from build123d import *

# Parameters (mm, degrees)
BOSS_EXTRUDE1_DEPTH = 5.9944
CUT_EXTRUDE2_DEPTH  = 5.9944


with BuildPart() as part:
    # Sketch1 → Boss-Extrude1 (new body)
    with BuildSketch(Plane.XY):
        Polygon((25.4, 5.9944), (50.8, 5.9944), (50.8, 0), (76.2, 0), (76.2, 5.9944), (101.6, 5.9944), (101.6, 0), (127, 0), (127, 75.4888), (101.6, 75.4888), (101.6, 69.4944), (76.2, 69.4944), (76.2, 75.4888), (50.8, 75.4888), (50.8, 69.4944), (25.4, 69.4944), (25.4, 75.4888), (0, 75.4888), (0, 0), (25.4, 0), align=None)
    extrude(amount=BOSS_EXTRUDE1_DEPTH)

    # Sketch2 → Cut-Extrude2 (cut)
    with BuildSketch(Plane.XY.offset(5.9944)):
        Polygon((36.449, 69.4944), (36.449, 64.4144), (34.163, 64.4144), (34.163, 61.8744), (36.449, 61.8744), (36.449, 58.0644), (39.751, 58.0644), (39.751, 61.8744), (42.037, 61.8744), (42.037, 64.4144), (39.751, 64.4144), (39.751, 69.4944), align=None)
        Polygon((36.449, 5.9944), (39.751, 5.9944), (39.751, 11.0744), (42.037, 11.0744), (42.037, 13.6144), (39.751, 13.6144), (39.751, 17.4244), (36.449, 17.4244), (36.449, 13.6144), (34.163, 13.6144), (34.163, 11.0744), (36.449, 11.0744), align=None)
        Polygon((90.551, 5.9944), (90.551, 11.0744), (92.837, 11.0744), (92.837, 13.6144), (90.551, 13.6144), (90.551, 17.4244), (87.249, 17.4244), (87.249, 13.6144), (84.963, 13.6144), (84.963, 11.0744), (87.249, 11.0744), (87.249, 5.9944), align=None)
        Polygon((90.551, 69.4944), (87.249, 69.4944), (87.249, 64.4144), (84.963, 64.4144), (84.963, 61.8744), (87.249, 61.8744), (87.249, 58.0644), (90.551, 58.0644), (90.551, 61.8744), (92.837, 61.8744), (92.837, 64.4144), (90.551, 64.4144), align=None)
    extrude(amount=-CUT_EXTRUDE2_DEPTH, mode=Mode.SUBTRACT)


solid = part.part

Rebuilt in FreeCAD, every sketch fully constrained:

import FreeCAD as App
import Part
import Sketcher
from FreeCAD import Vector
Q = App.Units.Quantity

doc = App.newDocument("Part")
body = doc.addObject("PartDesign::Body", "Body")

# Sketch on XY plane
sketch1 = doc.addObject("Sketcher::SketchObject", "Sketch")
body.addObject(sketch1)
sketch1.AttachmentSupport = (doc.XY_Plane, [""])
sketch1.MapMode = "FlatFace"
sketch1.addGeometry(Part.LineSegment(Vector(25, 6, 0), Vector(51, 6, 0)), False)
sketch1.addGeometry(Part.LineSegment(Vector(51, 6, 0), Vector(51, 0, 0)), False)
sketch1.addGeometry(Part.LineSegment(Vector(51, 0, 0), Vector(76, 0, 0)), False)
sketch1.addGeometry(Part.LineSegment(Vector(76, 0, 0), Vector(76, 6, 0)), False)
sketch1.addGeometry(Part.LineSegment(Vector(76, 6, 0), Vector(102, 6, 0)), False)
sketch1.addGeometry(Part.LineSegment(Vector(102, 6, 0), Vector(102, 0, 0)), False)
sketch1.addGeometry(Part.LineSegment(Vector(102, 0, 0), Vector(127, 0, 0)), False)
sketch1.addGeometry(Part.LineSegment(Vector(127, 0, 0), Vector(127, 75, 0)), False)
sketch1.addGeometry(Part.LineSegment(Vector(127, 75, 0), Vector(102, 75, 0)), False)
sketch1.addGeometry(Part.LineSegment(Vector(102, 75, 0), Vector(102, 69, 0)), False)
sketch1.addGeometry(Part.LineSegment(Vector(102, 69, 0), Vector(76, 69, 0)), False)
sketch1.addGeometry(Part.LineSegment(Vector(76, 69, 0), Vector(76, 75, 0)), False)
sketch1.addGeometry(Part.LineSegment(Vector(76, 75, 0), Vector(51, 75, 0)), False)
sketch1.addGeometry(Part.LineSegment(Vector(51, 75, 0), Vector(51, 69, 0)), False)
sketch1.addGeometry(Part.LineSegment(Vector(51, 69, 0), Vector(25, 69, 0)), False)
sketch1.addGeometry(Part.LineSegment(Vector(25, 69, 0), Vector(25, 75, 0)), False)
sketch1.addGeometry(Part.LineSegment(Vector(25, 75, 0), Vector(0, 75, 0)), False)
sketch1.addGeometry(Part.LineSegment(Vector(0, 75, 0), Vector(0, 0, 0)), False)
sketch1.addGeometry(Part.LineSegment(Vector(0, 0, 0), Vector(25, 0, 0)), False)
sketch1.addGeometry(Part.LineSegment(Vector(25, 0, 0), Vector(25, 6, 0)), False)
sketch1.addConstraint(Sketcher.Constraint("Coincident", 0, 2, 1, 1))
sketch1.addConstraint(Sketcher.Constraint("Coincident", 1, 2, 2, 1))
sketch1.addConstraint(Sketcher.Constraint("Coincident", 2, 2, 3, 1))
sketch1.addConstraint(Sketcher.Constraint("Coincident", 3, 2, 4, 1))
sketch1.addConstraint(Sketcher.Constraint("Coincident", 4, 2, 5, 1))
sketch1.addConstraint(Sketcher.Constraint("Coincident", 5, 2, 6, 1))
sketch1.addConstraint(Sketcher.Constraint("Coincident", 6, 2, 7, 1))
sketch1.addConstraint(Sketcher.Constraint("Coincident", 7, 2, 8, 1))
sketch1.addConstraint(Sketcher.Constraint("Coincident", 8, 2, 9, 1))
sketch1.addConstraint(Sketcher.Constraint("Coincident", 9, 2, 10, 1))
sketch1.addConstraint(Sketcher.Constraint("Coincident", 10, 2, 11, 1))
sketch1.addConstraint(Sketcher.Constraint("Coincident", 11, 2, 12, 1))
sketch1.addConstraint(Sketcher.Constraint("Coincident", 12, 2, 13, 1))
sketch1.addConstraint(Sketcher.Constraint("Coincident", 13, 2, 14, 1))
sketch1.addConstraint(Sketcher.Constraint("Coincident", 14, 2, 15, 1))
sketch1.addConstraint(Sketcher.Constraint("Coincident", 15, 2, 16, 1))
sketch1.addConstraint(Sketcher.Constraint("Coincident", 16, 2, 17, 1))
sketch1.addConstraint(Sketcher.Constraint("Coincident", 17, 2, 18, 1))
sketch1.addConstraint(Sketcher.Constraint("Coincident", 18, 2, 19, 1))
sketch1.addConstraint(Sketcher.Constraint("Coincident", 19, 2, 0, 1))
sketch1.addConstraint(Sketcher.Constraint("Horizontal", 0))
sketch1.addConstraint(Sketcher.Constraint("Vertical", 1))
sketch1.addConstraint(Sketcher.Constraint("Horizontal", 2))
sketch1.addConstraint(Sketcher.Constraint("Vertical", 3))
sketch1.addConstraint(Sketcher.Constraint("Horizontal", 4))
sketch1.addConstraint(Sketcher.Constraint("Vertical", 5))
sketch1.addConstraint(Sketcher.Constraint("Horizontal", 6))
sketch1.addConstraint(Sketcher.Constraint("Vertical", 7))
sketch1.addConstraint(Sketcher.Constraint("Horizontal", 8))
sketch1.addConstraint(Sketcher.Constraint("Vertical", 9))
sketch1.addConstraint(Sketcher.Constraint("Horizontal", 10))
sketch1.addConstraint(Sketcher.Constraint("Vertical", 11))
sketch1.addConstraint(Sketcher.Constraint("Horizontal", 12))
sketch1.addConstraint(Sketcher.Constraint("Vertical", 13))
sketch1.addConstraint(Sketcher.Constraint("Horizontal", 14))
sketch1.addConstraint(Sketcher.Constraint("Vertical", 15))
sketch1.addConstraint(Sketcher.Constraint("Horizontal", 16))
sketch1.addConstraint(Sketcher.Constraint("Vertical", 17))
sketch1.addConstraint(Sketcher.Constraint("Horizontal", 18))
sketch1.addConstraint(Sketcher.Constraint("Vertical", 19))
sketch1.addConstraint(Sketcher.Constraint("Coincident", 17, 2, -1, 1))
sketch1.addConstraint(Sketcher.Constraint("PointOnObject", 1, 2, -1))
sketch1.addConstraint(Sketcher.Constraint("PointOnObject", 5, 2, -1))
sketch1.addConstraint(Sketcher.Constraint("Horizontal", 0, 2, 3, 2))
sketch1.addConstraint(Sketcher.Constraint("Horizontal", 8, 2, 11, 2))
sketch1.addConstraint(Sketcher.Constraint("Horizontal", 10, 2, 13, 2))
sketch1.addConstraint(Sketcher.Constraint("Horizontal", 12, 2, 15, 2))
sketch1.addConstraint(Sketcher.Constraint("Vertical", 5, 2, 8, 2))
sketch1.addConstraint(Sketcher.Constraint("Vertical", 3, 2, 10, 2))
sketch1.addConstraint(Sketcher.Constraint("Vertical", 1, 2, 12, 2))
sketch1.addConstraint(Sketcher.Constraint("Vertical", 15, 2, 18, 2))
sketch1.addConstraint(Sketcher.Constraint("Equal", 0, 2))
sketch1.addConstraint(Sketcher.Constraint("Equal", 2, 4))
sketch1.addConstraint(Sketcher.Constraint("Equal", 4, 6))
sketch1.addConstraint(Sketcher.Constraint("Equal", 14, 16))
sketch1.addConstraint(Sketcher.Constraint("Equal", 5, 9))
sketch1.addConstraint(Sketcher.Constraint("DistanceX", 0, 1, 0, 2, Q("1 in")))
sketch1.addConstraint(Sketcher.Constraint("DistanceY", 4, 2, 9, 2, Q("2.5 in")))
sketch1.addConstraint(Sketcher.Constraint("DistanceY", 1, 2, 1, 1, Q("0.236 in")))
pad1 = doc.addObject("PartDesign::Pad", "Pad")
body.addObject(pad1)
pad1.Profile = sketch1
pad1.Length = Q("0.236 in")

# Sketch on XY plane
sketch2 = doc.addObject("Sketcher::SketchObject", "Sketch001")
body.addObject(sketch2)
sketch2.AttachmentSupport = (doc.XY_Plane, [""])
sketch2.MapMode = "FlatFace"
sketch2.AttachmentOffset = App.Placement(Vector(0, 0, 0.236 * 25.4), App.Rotation())
sketch2.addGeometry(Part.LineSegment(Vector(36.4, 69.5, 0), Vector(36.4, 64.4, 0)), False)
sketch2.addGeometry(Part.LineSegment(Vector(36.4, 64.4, 0), Vector(34.2, 64.4, 0)), False)
sketch2.addGeometry(Part.LineSegment(Vector(34.2, 64.4, 0), Vector(34.2, 61.9, 0)), False)
sketch2.addGeometry(Part.LineSegment(Vector(34.2, 61.9, 0), Vector(36.4, 61.9, 0)), False)
sketch2.addGeometry(Part.LineSegment(Vector(36.4, 61.9, 0), Vector(36.4, 58.1, 0)), False)
sketch2.addGeometry(Part.LineSegment(Vector(36.4, 58.1, 0), Vector(39.8, 58.1, 0)), False)
sketch2.addGeometry(Part.LineSegment(Vector(39.8, 58.1, 0), Vector(39.8, 61.9, 0)), False)
sketch2.addGeometry(Part.LineSegment(Vector(39.8, 61.9, 0), Vector(42, 61.9, 0)), False)
sketch2.addGeometry(Part.LineSegment(Vector(42, 61.9, 0), Vector(42, 64.4, 0)), False)
sketch2.addGeometry(Part.LineSegment(Vector(42, 64.4, 0), Vector(39.8, 64.4, 0)), False)
sketch2.addGeometry(Part.LineSegment(Vector(39.8, 64.4, 0), Vector(39.8, 69.5, 0)), False)
sketch2.addGeometry(Part.LineSegment(Vector(39.8, 69.5, 0), Vector(36.4, 69.5, 0)), False)
sketch2.addGeometry(Part.LineSegment(Vector(36.4, 6, 0), Vector(39.8, 6, 0)), False)
sketch2.addGeometry(Part.LineSegment(Vector(39.8, 6, 0), Vector(39.8, 11.1, 0)), False)
sketch2.addGeometry(Part.LineSegment(Vector(39.8, 11.1, 0), Vector(42, 11.1, 0)), False)
sketch2.addGeometry(Part.LineSegment(Vector(42, 11.1, 0), Vector(42, 13.6, 0)), False)
sketch2.addGeometry(Part.LineSegment(Vector(42, 13.6, 0), Vector(39.8, 13.6, 0)), False)
sketch2.addGeometry(Part.LineSegment(Vector(39.8, 13.6, 0), Vector(39.8, 17.4, 0)), False)
sketch2.addGeometry(Part.LineSegment(Vector(39.8, 17.4, 0), Vector(36.4, 17.4, 0)), False)
sketch2.addGeometry(Part.LineSegment(Vector(36.4, 17.4, 0), Vector(36.4, 13.6, 0)), False)
sketch2.addGeometry(Part.LineSegment(Vector(36.4, 13.6, 0), Vector(34.2, 13.6, 0)), False)
sketch2.addGeometry(Part.LineSegment(Vector(34.2, 13.6, 0), Vector(34.2, 11.1, 0)), False)
sketch2.addGeometry(Part.LineSegment(Vector(34.2, 11.1, 0), Vector(36.4, 11.1, 0)), False)
sketch2.addGeometry(Part.LineSegment(Vector(36.4, 11.1, 0), Vector(36.4, 6, 0)), False)
sketch2.addGeometry(Part.LineSegment(Vector(90.6, 6, 0), Vector(90.6, 11.1, 0)), False)
sketch2.addGeometry(Part.LineSegment(Vector(90.6, 11.1, 0), Vector(92.8, 11.1, 0)), False)
sketch2.addGeometry(Part.LineSegment(Vector(92.8, 11.1, 0), Vector(92.8, 13.6, 0)), False)
sketch2.addGeometry(Part.LineSegment(Vector(92.8, 13.6, 0), Vector(90.6, 13.6, 0)), False)
sketch2.addGeometry(Part.LineSegment(Vector(90.6, 13.6, 0), Vector(90.6, 17.4, 0)), False)
sketch2.addGeometry(Part.LineSegment(Vector(90.6, 17.4, 0), Vector(87.2, 17.4, 0)), False)
sketch2.addGeometry(Part.LineSegment(Vector(87.2, 17.4, 0), Vector(87.2, 13.6, 0)), False)
sketch2.addGeometry(Part.LineSegment(Vector(87.2, 13.6, 0), Vector(85, 13.6, 0)), False)
sketch2.addGeometry(Part.LineSegment(Vector(85, 13.6, 0), Vector(85, 11.1, 0)), False)
sketch2.addGeometry(Part.LineSegment(Vector(85, 11.1, 0), Vector(87.2, 11.1, 0)), False)
sketch2.addGeometry(Part.LineSegment(Vector(87.2, 11.1, 0), Vector(87.2, 6, 0)), False)
sketch2.addGeometry(Part.LineSegment(Vector(87.2, 6, 0), Vector(90.6, 6, 0)), False)
sketch2.addGeometry(Part.LineSegment(Vector(90.6, 69.5, 0), Vector(87.2, 69.5, 0)), False)
sketch2.addGeometry(Part.LineSegment(Vector(87.2, 69.5, 0), Vector(87.2, 64.4, 0)), False)
sketch2.addGeometry(Part.LineSegment(Vector(87.2, 64.4, 0), Vector(85, 64.4, 0)), False)
sketch2.addGeometry(Part.LineSegment(Vector(85, 64.4, 0), Vector(85, 61.9, 0)), False)
sketch2.addGeometry(Part.LineSegment(Vector(85, 61.9, 0), Vector(87.2, 61.9, 0)), False)
sketch2.addGeometry(Part.LineSegment(Vector(87.2, 61.9, 0), Vector(87.2, 58.1, 0)), False)
sketch2.addGeometry(Part.LineSegment(Vector(87.2, 58.1, 0), Vector(90.6, 58.1, 0)), False)
sketch2.addGeometry(Part.LineSegment(Vector(90.6, 58.1, 0), Vector(90.6, 61.9, 0)), False)
sketch2.addGeometry(Part.LineSegment(Vector(90.6, 61.9, 0), Vector(92.8, 61.9, 0)), False)
sketch2.addGeometry(Part.LineSegment(Vector(92.8, 61.9, 0), Vector(92.8, 64.4, 0)), False)
sketch2.addGeometry(Part.LineSegment(Vector(92.8, 64.4, 0), Vector(90.6, 64.4, 0)), False)
sketch2.addGeometry(Part.LineSegment(Vector(90.6, 64.4, 0), Vector(90.6, 69.5, 0)), False)
sketch2.addConstraint(Sketcher.Constraint("Coincident", 0, 2, 1, 1))
sketch2.addConstraint(Sketcher.Constraint("Coincident", 1, 2, 2, 1))
sketch2.addConstraint(Sketcher.Constraint("Coincident", 2, 2, 3, 1))
sketch2.addConstraint(Sketcher.Constraint("Coincident", 3, 2, 4, 1))
sketch2.addConstraint(Sketcher.Constraint("Coincident", 4, 2, 5, 1))
sketch2.addConstraint(Sketcher.Constraint("Coincident", 5, 2, 6, 1))
sketch2.addConstraint(Sketcher.Constraint("Coincident", 6, 2, 7, 1))
sketch2.addConstraint(Sketcher.Constraint("Coincident", 7, 2, 8, 1))
sketch2.addConstraint(Sketcher.Constraint("Coincident", 8, 2, 9, 1))
sketch2.addConstraint(Sketcher.Constraint("Coincident", 9, 2, 10, 1))
sketch2.addConstraint(Sketcher.Constraint("Coincident", 10, 2, 11, 1))
sketch2.addConstraint(Sketcher.Constraint("Coincident", 11, 2, 0, 1))
sketch2.addConstraint(Sketcher.Constraint("Coincident", 12, 2, 13, 1))
sketch2.addConstraint(Sketcher.Constraint("Coincident", 13, 2, 14, 1))
sketch2.addConstraint(Sketcher.Constraint("Coincident", 14, 2, 15, 1))
sketch2.addConstraint(Sketcher.Constraint("Coincident", 15, 2, 16, 1))
sketch2.addConstraint(Sketcher.Constraint("Coincident", 16, 2, 17, 1))
sketch2.addConstraint(Sketcher.Constraint("Coincident", 17, 2, 18, 1))
sketch2.addConstraint(Sketcher.Constraint("Coincident", 18, 2, 19, 1))
sketch2.addConstraint(Sketcher.Constraint("Coincident", 19, 2, 20, 1))
sketch2.addConstraint(Sketcher.Constraint("Coincident", 20, 2, 21, 1))
sketch2.addConstraint(Sketcher.Constraint("Coincident", 21, 2, 22, 1))
sketch2.addConstraint(Sketcher.Constraint("Coincident", 22, 2, 23, 1))
sketch2.addConstraint(Sketcher.Constraint("Coincident", 23, 2, 12, 1))
sketch2.addConstraint(Sketcher.Constraint("Coincident", 24, 2, 25, 1))
sketch2.addConstraint(Sketcher.Constraint("Coincident", 25, 2, 26, 1))
sketch2.addConstraint(Sketcher.Constraint("Coincident", 26, 2, 27, 1))
sketch2.addConstraint(Sketcher.Constraint("Coincident", 27, 2, 28, 1))
sketch2.addConstraint(Sketcher.Constraint("Coincident", 28, 2, 29, 1))
sketch2.addConstraint(Sketcher.Constraint("Coincident", 29, 2, 30, 1))
sketch2.addConstraint(Sketcher.Constraint("Coincident", 30, 2, 31, 1))
sketch2.addConstraint(Sketcher.Constraint("Coincident", 31, 2, 32, 1))
sketch2.addConstraint(Sketcher.Constraint("Coincident", 32, 2, 33, 1))
sketch2.addConstraint(Sketcher.Constraint("Coincident", 33, 2, 34, 1))
sketch2.addConstraint(Sketcher.Constraint("Coincident", 34, 2, 35, 1))
sketch2.addConstraint(Sketcher.Constraint("Coincident", 35, 2, 24, 1))
sketch2.addConstraint(Sketcher.Constraint("Coincident", 36, 2, 37, 1))
sketch2.addConstraint(Sketcher.Constraint("Coincident", 37, 2, 38, 1))
sketch2.addConstraint(Sketcher.Constraint("Coincident", 38, 2, 39, 1))
sketch2.addConstraint(Sketcher.Constraint("Coincident", 39, 2, 40, 1))
sketch2.addConstraint(Sketcher.Constraint("Coincident", 40, 2, 41, 1))
sketch2.addConstraint(Sketcher.Constraint("Coincident", 41, 2, 42, 1))
sketch2.addConstraint(Sketcher.Constraint("Coincident", 42, 2, 43, 1))
sketch2.addConstraint(Sketcher.Constraint("Coincident", 43, 2, 44, 1))
sketch2.addConstraint(Sketcher.Constraint("Coincident", 44, 2, 45, 1))
sketch2.addConstraint(Sketcher.Constraint("Coincident", 45, 2, 46, 1))
sketch2.addConstraint(Sketcher.Constraint("Coincident", 46, 2, 47, 1))
sketch2.addConstraint(Sketcher.Constraint("Coincident", 47, 2, 36, 1))
sketch2.addConstraint(Sketcher.Constraint("Vertical", 0))
sketch2.addConstraint(Sketcher.Constraint("Horizontal", 1))
sketch2.addConstraint(Sketcher.Constraint("Vertical", 2))
sketch2.addConstraint(Sketcher.Constraint("Horizontal", 3))
sketch2.addConstraint(Sketcher.Constraint("Vertical", 4))
sketch2.addConstraint(Sketcher.Constraint("Horizontal", 5))
sketch2.addConstraint(Sketcher.Constraint("Vertical", 6))
sketch2.addConstraint(Sketcher.Constraint("Horizontal", 7))
sketch2.addConstraint(Sketcher.Constraint("Vertical", 8))
sketch2.addConstraint(Sketcher.Constraint("Horizontal", 9))
sketch2.addConstraint(Sketcher.Constraint("Vertical", 10))
sketch2.addConstraint(Sketcher.Constraint("Horizontal", 11))
sketch2.addConstraint(Sketcher.Constraint("Horizontal", 12))
sketch2.addConstraint(Sketcher.Constraint("Vertical", 13))
sketch2.addConstraint(Sketcher.Constraint("Horizontal", 14))
sketch2.addConstraint(Sketcher.Constraint("Vertical", 15))
sketch2.addConstraint(Sketcher.Constraint("Horizontal", 16))
sketch2.addConstraint(Sketcher.Constraint("Vertical", 17))
sketch2.addConstraint(Sketcher.Constraint("Horizontal", 18))
sketch2.addConstraint(Sketcher.Constraint("Vertical", 19))
sketch2.addConstraint(Sketcher.Constraint("Horizontal", 20))
sketch2.addConstraint(Sketcher.Constraint("Vertical", 21))
sketch2.addConstraint(Sketcher.Constraint("Horizontal", 22))
sketch2.addConstraint(Sketcher.Constraint("Vertical", 23))
sketch2.addConstraint(Sketcher.Constraint("Vertical", 24))
sketch2.addConstraint(Sketcher.Constraint("Horizontal", 25))
sketch2.addConstraint(Sketcher.Constraint("Vertical", 26))
sketch2.addConstraint(Sketcher.Constraint("Horizontal", 27))
sketch2.addConstraint(Sketcher.Constraint("Vertical", 28))
sketch2.addConstraint(Sketcher.Constraint("Horizontal", 29))
sketch2.addConstraint(Sketcher.Constraint("Vertical", 30))
sketch2.addConstraint(Sketcher.Constraint("Horizontal", 31))
sketch2.addConstraint(Sketcher.Constraint("Vertical", 32))
sketch2.addConstraint(Sketcher.Constraint("Horizontal", 33))
sketch2.addConstraint(Sketcher.Constraint("Vertical", 34))
sketch2.addConstraint(Sketcher.Constraint("Horizontal", 35))
sketch2.addConstraint(Sketcher.Constraint("Horizontal", 36))
sketch2.addConstraint(Sketcher.Constraint("Vertical", 37))
sketch2.addConstraint(Sketcher.Constraint("Horizontal", 38))
sketch2.addConstraint(Sketcher.Constraint("Vertical", 39))
sketch2.addConstraint(Sketcher.Constraint("Horizontal", 40))
sketch2.addConstraint(Sketcher.Constraint("Vertical", 41))
sketch2.addConstraint(Sketcher.Constraint("Horizontal", 42))
sketch2.addConstraint(Sketcher.Constraint("Vertical", 43))
sketch2.addConstraint(Sketcher.Constraint("Horizontal", 44))
sketch2.addConstraint(Sketcher.Constraint("Vertical", 45))
sketch2.addConstraint(Sketcher.Constraint("Horizontal", 46))
sketch2.addConstraint(Sketcher.Constraint("Vertical", 47))
sketch2.addConstraint(Sketcher.Constraint("Horizontal", 3, 2, 6, 2))
sketch2.addConstraint(Sketcher.Constraint("Horizontal", 1, 2, 8, 2))
sketch2.addConstraint(Sketcher.Constraint("Horizontal", 16, 2, 19, 2))
sketch2.addConstraint(Sketcher.Constraint("Horizontal", 14, 2, 21, 2))
sketch2.addConstraint(Sketcher.Constraint("Horizontal", 22, 2, 24, 2))
sketch2.addConstraint(Sketcher.Constraint("Horizontal", 20, 2, 26, 2))
sketch2.addConstraint(Sketcher.Constraint("Horizontal", 18, 2, 28, 2))
sketch2.addConstraint(Sketcher.Constraint("Horizontal", 27, 2, 30, 2))
sketch2.addConstraint(Sketcher.Constraint("Horizontal", 25, 2, 32, 2))
sketch2.addConstraint(Sketcher.Constraint("Horizontal", 23, 2, 34, 2))
sketch2.addConstraint(Sketcher.Constraint("Horizontal", 11, 2, 36, 2))
sketch2.addConstraint(Sketcher.Constraint("Horizontal", 9, 2, 37, 2))
sketch2.addConstraint(Sketcher.Constraint("Horizontal", 7, 2, 39, 2))
sketch2.addConstraint(Sketcher.Constraint("Horizontal", 5, 2, 41, 2))
sketch2.addConstraint(Sketcher.Constraint("Horizontal", 40, 2, 43, 2))
sketch2.addConstraint(Sketcher.Constraint("Horizontal", 38, 2, 45, 2))
sketch2.addConstraint(Sketcher.Constraint("Vertical", 0, 2, 3, 2))
sketch2.addConstraint(Sketcher.Constraint("Vertical", 6, 2, 9, 2))
sketch2.addConstraint(Sketcher.Constraint("Vertical", 10, 2, 12, 2))
sketch2.addConstraint(Sketcher.Constraint("Vertical", 8, 2, 14, 2))
sketch2.addConstraint(Sketcher.Constraint("Vertical", 13, 2, 16, 2))
sketch2.addConstraint(Sketcher.Constraint("Vertical", 11, 2, 18, 2))
sketch2.addConstraint(Sketcher.Constraint("Vertical", 2, 2, 20, 2))
sketch2.addConstraint(Sketcher.Constraint("Vertical", 19, 2, 22, 2))
sketch2.addConstraint(Sketcher.Constraint("Vertical", 24, 2, 27, 2))
sketch2.addConstraint(Sketcher.Constraint("Vertical", 30, 2, 33, 2))
sketch2.addConstraint(Sketcher.Constraint("Vertical", 34, 2, 36, 2))
sketch2.addConstraint(Sketcher.Constraint("Vertical", 32, 2, 38, 2))
sketch2.addConstraint(Sketcher.Constraint("Vertical", 37, 2, 40, 2))
sketch2.addConstraint(Sketcher.Constraint("Vertical", 35, 2, 42, 2))
sketch2.addConstraint(Sketcher.Constraint("Vertical", 26, 2, 44, 2))
sketch2.addConstraint(Sketcher.Constraint("Vertical", 43, 2, 46, 2))
sketch2.addConstraint(Sketcher.Constraint("Equal", 3, 7))
sketch2.addConstraint(Sketcher.Constraint("Equal", 22, 25))
sketch2.addConstraint(Sketcher.Constraint("Equal", 18, 29))
sketch2.addConstraint(Sketcher.Constraint("Equal", 27, 31))
sketch2.addConstraint(Sketcher.Constraint("Equal", 10, 13))
sketch2.addConstraint(Sketcher.Constraint("Equal", 8, 15))
sketch2.addConstraint(Sketcher.Constraint("Equal", 6, 17))
sketch2.addConstraint(Sketcher.Constraint("DistanceY", 0, 2, 0, 1, Q("0.2 in")))
sketch2.addConstraint(Sketcher.Constraint("DistanceY", 2, 2, 2, 1, Q("0.1 in")))
sketch2.addConstraint(Sketcher.Constraint("DistanceY", 13, 2, 6, 2, Q("2 in")))
sketch2.addConstraint(Sketcher.Constraint("DistanceX", 13, 2, 24, 2, Q("2 in")))
sketch2.addConstraint(Sketcher.Constraint("DistanceX", 1, 2, 1, 1, Q("0.09 in")))
sketch2.addConstraint(Sketcher.Constraint("DistanceX", 5, 1, 5, 2, Q("0.13 in")))
sketch2.addConstraint(Sketcher.Constraint("DistanceY", 4, 2, 4, 1, Q("0.15 in")))
sketch2.addConstraint(Sketcher.Constraint("DistanceX", -1, 1, 0, 2, Q("1.435 in")))
sketch2.addConstraint(Sketcher.Constraint("DistanceY", -1, 1, 0, 2, Q("2.536 in")))
pocket1 = doc.addObject("PartDesign::Pocket", "Pocket")
body.addObject(pocket1)
pocket1.Profile = sketch2
pocket1.Length = Q("0.236 in")

doc.recompute()
